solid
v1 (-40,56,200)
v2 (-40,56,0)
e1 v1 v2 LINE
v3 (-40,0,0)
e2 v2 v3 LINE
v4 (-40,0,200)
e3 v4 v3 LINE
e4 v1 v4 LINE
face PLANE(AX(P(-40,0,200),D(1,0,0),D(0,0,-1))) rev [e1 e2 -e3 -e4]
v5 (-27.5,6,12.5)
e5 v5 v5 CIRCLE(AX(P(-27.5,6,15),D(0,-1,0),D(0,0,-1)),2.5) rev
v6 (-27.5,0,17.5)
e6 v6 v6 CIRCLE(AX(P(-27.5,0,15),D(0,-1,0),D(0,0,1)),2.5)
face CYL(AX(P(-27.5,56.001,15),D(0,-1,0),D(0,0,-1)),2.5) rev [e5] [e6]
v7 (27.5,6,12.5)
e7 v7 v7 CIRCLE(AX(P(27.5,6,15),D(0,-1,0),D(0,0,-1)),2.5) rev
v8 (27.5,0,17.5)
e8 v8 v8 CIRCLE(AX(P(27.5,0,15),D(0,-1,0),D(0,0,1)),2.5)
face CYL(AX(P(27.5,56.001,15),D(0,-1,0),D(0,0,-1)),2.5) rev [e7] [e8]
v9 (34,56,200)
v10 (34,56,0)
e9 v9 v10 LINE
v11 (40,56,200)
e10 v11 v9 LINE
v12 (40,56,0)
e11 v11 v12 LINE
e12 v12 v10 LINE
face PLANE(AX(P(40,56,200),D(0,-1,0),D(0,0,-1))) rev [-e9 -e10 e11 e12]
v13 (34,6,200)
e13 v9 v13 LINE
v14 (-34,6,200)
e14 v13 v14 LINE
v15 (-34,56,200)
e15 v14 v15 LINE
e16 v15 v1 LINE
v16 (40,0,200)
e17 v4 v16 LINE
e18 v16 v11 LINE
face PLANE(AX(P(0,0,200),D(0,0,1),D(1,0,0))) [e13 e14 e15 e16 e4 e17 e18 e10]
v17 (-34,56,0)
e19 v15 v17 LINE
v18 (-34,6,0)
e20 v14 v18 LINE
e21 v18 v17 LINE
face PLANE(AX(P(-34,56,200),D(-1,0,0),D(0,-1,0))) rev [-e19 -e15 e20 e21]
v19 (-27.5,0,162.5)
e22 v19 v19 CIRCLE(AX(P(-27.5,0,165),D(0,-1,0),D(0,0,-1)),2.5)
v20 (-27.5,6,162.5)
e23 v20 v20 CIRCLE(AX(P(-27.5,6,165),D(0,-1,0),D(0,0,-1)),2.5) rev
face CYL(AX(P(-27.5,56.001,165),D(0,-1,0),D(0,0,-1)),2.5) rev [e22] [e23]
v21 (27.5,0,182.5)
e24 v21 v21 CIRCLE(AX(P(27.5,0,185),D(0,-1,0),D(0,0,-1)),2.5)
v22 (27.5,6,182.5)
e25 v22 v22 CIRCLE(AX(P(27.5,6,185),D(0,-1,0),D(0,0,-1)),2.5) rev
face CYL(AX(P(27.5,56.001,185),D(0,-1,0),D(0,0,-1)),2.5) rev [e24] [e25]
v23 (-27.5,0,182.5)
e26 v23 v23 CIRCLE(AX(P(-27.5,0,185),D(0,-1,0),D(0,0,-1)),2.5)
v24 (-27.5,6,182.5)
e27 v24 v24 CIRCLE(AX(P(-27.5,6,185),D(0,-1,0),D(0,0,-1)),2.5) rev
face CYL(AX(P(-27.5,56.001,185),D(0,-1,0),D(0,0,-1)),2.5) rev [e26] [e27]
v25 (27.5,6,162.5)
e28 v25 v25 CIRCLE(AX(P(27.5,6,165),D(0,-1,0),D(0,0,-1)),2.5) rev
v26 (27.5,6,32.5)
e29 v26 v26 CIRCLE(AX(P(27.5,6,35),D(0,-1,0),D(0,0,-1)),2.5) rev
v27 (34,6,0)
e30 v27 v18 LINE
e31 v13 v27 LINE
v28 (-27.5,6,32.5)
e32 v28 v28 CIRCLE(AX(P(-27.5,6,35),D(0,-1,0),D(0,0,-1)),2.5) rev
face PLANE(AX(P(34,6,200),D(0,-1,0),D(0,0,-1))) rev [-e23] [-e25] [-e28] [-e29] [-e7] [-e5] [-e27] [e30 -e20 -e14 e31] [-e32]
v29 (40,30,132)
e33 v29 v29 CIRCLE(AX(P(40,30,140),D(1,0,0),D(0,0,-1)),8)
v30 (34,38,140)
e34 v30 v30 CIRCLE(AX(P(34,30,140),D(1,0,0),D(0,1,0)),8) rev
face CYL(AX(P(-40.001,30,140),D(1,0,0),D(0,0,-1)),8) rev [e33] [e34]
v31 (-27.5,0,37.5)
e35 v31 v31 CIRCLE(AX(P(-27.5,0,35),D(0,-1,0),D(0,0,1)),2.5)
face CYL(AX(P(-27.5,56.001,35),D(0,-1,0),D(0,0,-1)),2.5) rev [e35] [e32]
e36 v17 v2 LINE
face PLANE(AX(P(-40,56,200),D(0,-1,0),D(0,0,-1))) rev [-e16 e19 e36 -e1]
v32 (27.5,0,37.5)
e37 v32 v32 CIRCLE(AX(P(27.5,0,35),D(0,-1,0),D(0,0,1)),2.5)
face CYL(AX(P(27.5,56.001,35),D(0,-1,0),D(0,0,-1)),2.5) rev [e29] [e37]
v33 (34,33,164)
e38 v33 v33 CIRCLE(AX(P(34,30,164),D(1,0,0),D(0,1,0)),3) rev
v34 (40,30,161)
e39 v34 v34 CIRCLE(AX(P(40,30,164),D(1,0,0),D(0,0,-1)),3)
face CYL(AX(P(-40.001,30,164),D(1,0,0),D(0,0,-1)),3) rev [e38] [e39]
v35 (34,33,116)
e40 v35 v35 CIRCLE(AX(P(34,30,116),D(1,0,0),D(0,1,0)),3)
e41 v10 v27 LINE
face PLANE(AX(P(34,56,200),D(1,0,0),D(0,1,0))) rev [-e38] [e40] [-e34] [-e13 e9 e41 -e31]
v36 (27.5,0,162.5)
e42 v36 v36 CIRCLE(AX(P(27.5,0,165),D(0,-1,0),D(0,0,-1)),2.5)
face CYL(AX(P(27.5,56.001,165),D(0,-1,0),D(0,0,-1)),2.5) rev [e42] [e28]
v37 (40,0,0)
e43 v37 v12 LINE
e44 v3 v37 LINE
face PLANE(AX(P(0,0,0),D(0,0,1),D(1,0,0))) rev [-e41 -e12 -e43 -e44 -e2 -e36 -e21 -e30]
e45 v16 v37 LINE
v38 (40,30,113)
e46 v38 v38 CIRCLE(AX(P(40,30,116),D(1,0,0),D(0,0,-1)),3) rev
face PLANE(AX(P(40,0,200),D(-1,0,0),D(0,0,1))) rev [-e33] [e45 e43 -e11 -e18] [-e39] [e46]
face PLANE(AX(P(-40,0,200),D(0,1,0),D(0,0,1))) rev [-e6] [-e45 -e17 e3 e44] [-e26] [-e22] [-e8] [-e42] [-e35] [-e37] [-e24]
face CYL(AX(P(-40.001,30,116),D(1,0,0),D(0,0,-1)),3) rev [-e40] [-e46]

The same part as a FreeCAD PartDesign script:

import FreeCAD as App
import Part
import Sketcher

V = App.Vector


def add_polygon(sketch, points):
    """Adds a closed chain of lines whose ends are joined by coincident constraints."""
    first, n = sketch.GeometryCount, len(points)
    for a, b in zip(points, points[1:] + points[:1]):
        sketch.addGeometry(Part.LineSegment(App.Vector(*a, 0), App.Vector(*b, 0)), False)
    for i in range(n):
        sketch.addConstraint(Sketcher.Constraint("Coincident", first + i, 2, first + (i + 1) % n, 1))

doc = App.newDocument("Part")
body = doc.addObject("PartDesign::Body", "Body")

# Sketch on XY plane
sketch1 = body.newObject("Sketcher::SketchObject", "Sketch")
sketch1.AttachmentSupport = (doc.getObject("XY_Plane"), [""])
sketch1.MapMode = "FlatFace"
add_polygon(sketch1, [(-40, 0), (40, 0), (40, 56), (34, 56), (34, 6), (-34, 6), (-34, 56), (-40, 56)])  # lines 0-7
sketch1.addConstraint(Sketcher.Constraint("Horizontal", 0))
sketch1.addConstraint(Sketcher.Constraint("Vertical", 1))
sketch1.addConstraint(Sketcher.Constraint("Horizontal", 2))
sketch1.addConstraint(Sketcher.Constraint("Vertical", 3))
sketch1.addConstraint(Sketcher.Constraint("Horizontal", 4))
sketch1.addConstraint(Sketcher.Constraint("Vertical", 5))
sketch1.addConstraint(Sketcher.Constraint("Horizontal", 6))
sketch1.addConstraint(Sketcher.Constraint("Vertical", 7))
sketch1.addConstraint(Sketcher.Constraint("Symmetric", 0, 2, 7, 2, -1, 1))
sketch1.addConstraint(Sketcher.Constraint("Symmetric", 2, 2, 5, 2, -2))
sketch1.addConstraint(Sketcher.Constraint("DistanceX", 0, 1, 0, 2, 80.0))
sketch1.addConstraint(Sketcher.Constraint("DistanceX", 2, 2, 2, 1, 6.0))
sketch1.addConstraint(Sketcher.Constraint("DistanceY", 1, 1, 1, 2, 56.0))
sketch1.addConstraint(Sketcher.Constraint("DistanceY", 3, 2, 3, 1, 50.0))
pad1 = body.newObject("PartDesign::Pad", "Pad")
pad1.Profile = sketch1
pad1.Length = 200

# Sketch on YZ plane
sketch2 = body.newObject("Sketcher::SketchObject", "Sketch001")
sketch2.AttachmentSupport = (doc.getObject("YZ_Plane"), [""])
sketch2.MapMode = "FlatFace"
sketch2.AttachmentOffset = App.Placement(V(0, 0, 40), App.Rotation())
sketch2.addGeometry(Part.Circle(V(30, 140, 0), V(0, 0, 1), 8), False)
sketch2.addConstraint(Sketcher.Constraint("Diameter", 0, 16.0))
sketch2.addConstraint(Sketcher.Constraint("DistanceX", -1, 1, 0, 3, 30.0))
sketch2.addConstraint(Sketcher.Constraint("DistanceY", -1, 1, 0, 3, 140.0))
pocket1 = body.newObject("PartDesign::Pocket", "Pocket")
pocket1.Profile = sketch2
pocket1.Type = "UpToFirst"

# Sketch on YZ plane
sketch3 = body.newObject("Sketcher::SketchObject", "Sketch002")
sketch3.AttachmentSupport = (doc.getObject("YZ_Plane"), [""])
sketch3.MapMode = "FlatFace"
sketch3.AttachmentOffset = App.Placement(V(0, 0, 40), App.Rotation())
sketch3.addGeometry(Part.Circle(V(30, 164, 0), V(0, 0, 1), 3), False)
sketch3.addConstraint(Sketcher.Constraint("Diameter", 0, 6.0))
sketch3.addConstraint(Sketcher.Constraint("DistanceX", -1, 1, 0, 3, 30.0))
sketch3.addConstraint(Sketcher.Constraint("DistanceY", -1, 1, 0, 3, 164.0))
pocket2 = body.newObject("PartDesign::Pocket", "Pocket001")
pocket2.Profile = sketch3
pocket2.Type = "UpToFirst"

# Sketch on YZ plane
sketch4 = body.newObject("Sketcher::SketchObject", "Sketch003")
sketch4.AttachmentSupport = (doc.getObject("YZ_Plane"), [""])
sketch4.MapMode = "FlatFace"
sketch4.AttachmentOffset = App.Placement(V(0, 0, 40), App.Rotation())
sketch4.addGeometry(Part.Circle(V(30, 116, 0), V(0, 0, 1), 3), False)
sketch4.addConstraint(Sketcher.Constraint("Diameter", 0, 6.0))
sketch4.addConstraint(Sketcher.Constraint("DistanceX", -1, 1, 0, 3, 30.0))
sketch4.addConstraint(Sketcher.Constraint("DistanceY", -1, 1, 0, 3, 116.0))
pocket3 = body.newObject("PartDesign::Pocket", "Pocket002")
pocket3.Profile = sketch4
pocket3.Type = "UpToFirst"

# Sketch on XZ plane
sketch5 = body.newObject("Sketcher::SketchObject", "Sketch004")
sketch5.AttachmentSupport = (doc.getObject("XZ_Plane"), [""])
sketch5.MapMode = "FlatFace"
sketch5.addGeometry(Part.Circle(V(-27.5, 185, 0), V(0, 0, 1), 2.5), False)
sketch5.addConstraint(Sketcher.Constraint("Diameter", 0, 5.0))
sketch5.addConstraint(Sketcher.Constraint("DistanceY", -1, 1, 0, 3, 185.0))
sketch5.addConstraint(Sketcher.Constraint("DistanceX", 0, 3, -1, 1, 27.5))
pocket4 = body.newObject("PartDesign::Pocket", "Pocket003")
pocket4.Profile = sketch5
pocket4.Type = "UpToFirst"

# Sketch on XZ plane
sketch6 = body.newObject("Sketcher::SketchObject", "Sketch005")
sketch6.AttachmentSupport = (doc.getObject("XZ_Plane"), [""])
sketch6.MapMode = "FlatFace"
sketch6.addGeometry(Part.Circle(V(27.5, 185, 0), V(0, 0, 1), 2.5), False)
sketch6.addConstraint(Sketcher.Constraint("Diameter", 0, 5.0))
sketch6.addConstraint(Sketcher.Constraint("DistanceY", -1, 1, 0, 3, 185.0))
sketch6.addConstraint(Sketcher.Constraint("DistanceX", -1, 1, 0, 3, 27.5))
pocket5 = body.newObject("PartDesign::Pocket", "Pocket004")
pocket5.Profile = sketch6
pocket5.Type = "UpToFirst"

# Sketch on XZ plane
sketch7 = body.newObject("Sketcher::SketchObject", "Sketch006")
sketch7.AttachmentSupport = (doc.getObject("XZ_Plane"), [""])
sketch7.MapMode = "FlatFace"
sketch7.addGeometry(Part.Circle(V(-27.5, 165, 0), V(0, 0, 1), 2.5), False)
sketch7.addConstraint(Sketcher.Constraint("Diameter", 0, 5.0))
sketch7.addConstraint(Sketcher.Constraint("DistanceY", -1, 1, 0, 3, 165.0))
sketch7.addConstraint(Sketcher.Constraint("DistanceX", 0, 3, -1, 1, 27.5))
pocket6 = body.newObject("PartDesign::Pocket", "Pocket005")
pocket6.Profile = sketch7
pocket6.Type = "UpToFirst"

# Sketch on XZ plane
sketch8 = body.newObject("Sketcher::SketchObject", "Sketch007")
sketch8.AttachmentSupport = (doc.getObject("XZ_Plane"), [""])
sketch8.MapMode = "FlatFace"
sketch8.addGeometry(Part.Circle(V(27.5, 165, 0), V(0, 0, 1), 2.5), False)
sketch8.addConstraint(Sketcher.Constraint("Diameter", 0, 5.0))
sketch8.addConstraint(Sketcher.Constraint("DistanceY", -1, 1, 0, 3, 165.0))
sketch8.addConstraint(Sketcher.Constraint("DistanceX", -1, 1, 0, 3, 27.5))
pocket7 = body.newObject("PartDesign::Pocket", "Pocket006")
pocket7.Profile = sketch8
pocket7.Type = "UpToFirst"

# Sketch on XZ plane
sketch9 = body.newObject("Sketcher::SketchObject", "Sketch008")
sketch9.AttachmentSupport = (doc.getObject("XZ_Plane"), [""])
sketch9.MapMode = "FlatFace"
sketch9.addGeometry(Part.Circle(V(27.5, 35, 0), V(0, 0, 1), 2.5), False)
sketch9.addConstraint(Sketcher.Constraint("Diameter", 0, 5.0))
sketch9.addConstraint(Sketcher.Constraint("DistanceY", -1, 1, 0, 3, 35.0))
sketch9.addConstraint(Sketcher.Constraint("DistanceX", -1, 1, 0, 3, 27.5))
pocket8 = body.newObject("PartDesign::Pocket", "Pocket007")
pocket8.Profile = sketch9
pocket8.Type = "UpToFirst"

# Sketch on XZ plane
sketch10 = body.newObject("Sketcher::SketchObject", "Sketch009")
sketch10.AttachmentSupport = (doc.getObject("XZ_Plane"), [""])
sketch10.MapMode = "FlatFace"
sketch10.addGeometry(Part.Circle(V(-27.5, 35, 0), V(0, 0, 1), 2.5), False)
sketch10.addConstraint(Sketcher.Constraint("Diameter", 0, 5.0))
sketch10.addConstraint(Sketcher.Constraint("DistanceY", -1, 1, 0, 3, 35.0))
sketch10.addConstraint(Sketcher.Constraint("DistanceX", 0, 3, -1, 1, 27.5))
pocket9 = body.newObject("PartDesign::Pocket", "Pocket008")
pocket9.Profile = sketch10
pocket9.Type = "UpToFirst"

# Sketch on XZ plane
sketch11 = body.newObject("Sketcher::SketchObject", "Sketch010")
sketch11.AttachmentSupport = (doc.getObject("XZ_Plane"), [""])
sketch11.MapMode = "FlatFace"
sketch11.addGeometry(Part.Circle(V(27.5, 15, 0), V(0, 0, 1), 2.5), False)
sketch11.addConstraint(Sketcher.Constraint("Diameter", 0, 5.0))
sketch11.addConstraint(Sketcher.Constraint("DistanceY", -1, 1, 0, 3, 15.0))
sketch11.addConstraint(Sketcher.Constraint("DistanceX", -1, 1, 0, 3, 27.5))
pocket10 = body.newObject("PartDesign::Pocket", "Pocket009")
pocket10.Profile = sketch11
pocket10.Type = "UpToFirst"

# Sketch on XZ plane
sketch12 = body.newObject("Sketcher::SketchObject", "Sketch011")
sketch12.AttachmentSupport = (doc.getObject("XZ_Plane"), [""])
sketch12.MapMode = "FlatFace"
sketch12.addGeometry(Part.Circle(V(-27.5, 15, 0), V(0, 0, 1), 2.5), False)
sketch12.addConstraint(Sketcher.Constraint("Diameter", 0, 5.0))
sketch12.addConstraint(Sketcher.Constraint("DistanceY", -1, 1, 0, 3, 15.0))
sketch12.addConstraint(Sketcher.Constraint("DistanceX", 0, 3, -1, 1, 27.5))
pocket11 = body.newObject("PartDesign::Pocket", "Pocket010")
pocket11.Profile = sketch12
pocket11.Type = "UpToFirst"

doc.recompute()
